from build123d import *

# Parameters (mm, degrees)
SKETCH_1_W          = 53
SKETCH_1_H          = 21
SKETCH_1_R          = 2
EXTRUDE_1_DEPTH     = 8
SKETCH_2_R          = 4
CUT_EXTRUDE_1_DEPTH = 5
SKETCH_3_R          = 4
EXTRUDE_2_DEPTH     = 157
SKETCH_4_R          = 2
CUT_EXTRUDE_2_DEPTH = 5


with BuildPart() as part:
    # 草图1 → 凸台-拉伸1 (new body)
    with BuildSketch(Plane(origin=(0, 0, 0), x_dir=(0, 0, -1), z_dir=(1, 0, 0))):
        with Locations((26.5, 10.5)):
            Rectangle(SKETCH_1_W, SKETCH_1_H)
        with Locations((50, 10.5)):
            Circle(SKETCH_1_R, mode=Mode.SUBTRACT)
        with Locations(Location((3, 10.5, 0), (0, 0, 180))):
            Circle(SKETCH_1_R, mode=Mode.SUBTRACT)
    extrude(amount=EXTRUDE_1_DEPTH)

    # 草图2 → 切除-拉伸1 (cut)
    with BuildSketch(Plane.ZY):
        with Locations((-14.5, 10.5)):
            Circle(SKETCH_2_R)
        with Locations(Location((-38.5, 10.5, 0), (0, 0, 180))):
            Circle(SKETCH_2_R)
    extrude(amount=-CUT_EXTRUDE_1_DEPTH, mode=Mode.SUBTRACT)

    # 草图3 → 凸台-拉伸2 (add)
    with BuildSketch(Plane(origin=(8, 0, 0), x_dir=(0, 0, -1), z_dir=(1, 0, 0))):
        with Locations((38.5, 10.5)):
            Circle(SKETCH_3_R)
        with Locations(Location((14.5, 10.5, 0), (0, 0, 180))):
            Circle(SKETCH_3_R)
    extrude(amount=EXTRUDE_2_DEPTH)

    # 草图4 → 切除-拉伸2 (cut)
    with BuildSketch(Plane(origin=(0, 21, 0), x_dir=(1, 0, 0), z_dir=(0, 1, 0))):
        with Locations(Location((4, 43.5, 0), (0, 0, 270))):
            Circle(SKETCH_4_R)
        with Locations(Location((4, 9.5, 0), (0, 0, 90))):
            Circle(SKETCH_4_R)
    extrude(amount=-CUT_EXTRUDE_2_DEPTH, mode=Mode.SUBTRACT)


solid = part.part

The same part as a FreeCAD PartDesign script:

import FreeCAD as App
import Part
import Sketcher
from FreeCAD import Vector
Q = App.Units.Quantity

doc = App.newDocument("Part")
body = doc.addObject("PartDesign::Body", "Body")

# Sketch on YZ plane
sketch1 = body.newObject("Sketcher::SketchObject", "Sketch")
sketch1.AttachmentSupport = (doc.getObject("YZ_Plane"), [""])
sketch1.MapMode = "FlatFace"
sketch1.addGeometry([
    Part.LineSegment(Vector(21, 0, 0), Vector(0, 0, 0)),  # 0
    Part.LineSegment(Vector(0, 0, 0), Vector(0, -53, 0)),  # 1
    Part.LineSegment(Vector(0, -53, 0), Vector(21, -53, 0)),  # 2
    Part.LineSegment(Vector(21, -53, 0), Vector(21, 0, 0)),  # 3
    Part.Circle(Vector(10.5, -3, 0), Vector(0, 0, 1), 2),  # 4
    Part.Circle(Vector(10.5, -50, 0), Vector(0, 0, 1), 2),  # 5
], False)
sketch1.addConstraint([
    Sketcher.Constraint("Coincident", 0, 2, 1, 1),
    Sketcher.Constraint("Coincident", 1, 2, 2, 1),
    Sketcher.Constraint("Coincident", 2, 2, 3, 1),
    Sketcher.Constraint("Coincident", 3, 2, 0, 1),
    Sketcher.Constraint("Horizontal", 0),
    Sketcher.Constraint("Vertical", 1),
    Sketcher.Constraint("Horizontal", 2),
    Sketcher.Constraint("Vertical", 3),
    Sketcher.Constraint("Coincident", 0, 2, -1, 1),
    Sketcher.Constraint("Equal", 4, 5),
    Sketcher.Constraint("Vertical", 4, 3, 5, 3),
    Sketcher.Constraint("Diameter", 4, Q("4 mm")),
    Sketcher.Constraint("DistanceX", 0, 2, 0, 1, Q("21 mm")),
    Sketcher.Constraint("DistanceY", 1, 2, 1, 1, Q("53 mm")),
    Sketcher.Constraint("DistanceY", 4, 3, -1, 1, Q("3 mm")),
    Sketcher.Constraint("DistanceY", 5, 3, -1, 1, Q("50 mm")),
    Sketcher.Constraint("DistanceX", -1, 1, 4, 3, Q("10.5 mm")),
])
pad1 = body.newObject("PartDesign::Pad", "Pad")
pad1.Profile = sketch1
pad1.Length = 8

# Sketch on YZ plane
sketch2 = body.newObject("Sketcher::SketchObject", "Sketch001")
sketch2.AttachmentSupport = (doc.getObject("YZ_Plane"), [""])
sketch2.MapMode = "FlatFace"
sketch2.addGeometry([
    Part.Circle(Vector(10.5, -14.5, 0), Vector(0, 0, 1), 4),
    Part.Circle(Vector(10.5, -38.5, 0), Vector(0, 0, 1), 4),
], False)
sketch2.addConstraint([
    Sketcher.Constraint("Equal", 0, 1),
    Sketcher.Constraint("Vertical", 0, 3, 1, 3),
    Sketcher.Constraint("Diameter", 0, Q("8 mm")),
    Sketcher.Constraint("DistanceY", 1, 3, 0, 3, Q("24 mm")),
    Sketcher.Constraint("DistanceX", -1, 1, 0, 3, Q("10.5 mm")),
    Sketcher.Constraint("DistanceY", 0, 3, -1, 1, Q("14.5 mm")),
])
pocket1 = body.newObject("PartDesign::Pocket", "Pocket")
pocket1.Profile = sketch2
pocket1.Length = 5
pocket1.Reversed = True

# Sketch on YZ plane
sketch3 = body.newObject("Sketcher::SketchObject", "Sketch002")
sketch3.AttachmentSupport = (doc.getObject("YZ_Plane"), [""])
sketch3.MapMode = "FlatFace"
sketch3.AttachmentOffset = App.Placement(Vector(0, 0, 8), App.Rotation())
sketch3.addGeometry([
    Part.Circle(Vector(10.5, -38.5, 0), Vector(0, 0, 1), 4),
    Part.Circle(Vector(10.5, -14.5, 0), Vector(0, 0, 1), 4),
], False)
sketch3.addConstraint([
    Sketcher.Constraint("Equal", 0, 1),
    Sketcher.Constraint("Vertical", 0, 3, 1, 3),
    Sketcher.Constraint("Diameter", 0, Q("8 mm")),
    Sketcher.Constraint("DistanceY", 0, 3, 1, 3, Q("24 mm")),
    Sketcher.Constraint("DistanceX", -1, 1, 0, 3, Q("10.5 mm")),
    Sketcher.Constraint("DistanceY", 0, 3, -1, 1, Q("38.5 mm")),
])
pad2 = body.newObject("PartDesign::Pad", "Pad001")
pad2.Profile = sketch3
pad2.Length = 157

# Sketch on XZ plane
sketch4 = body.newObject("Sketcher::SketchObject", "Sketch003")
sketch4.AttachmentSupport = (doc.getObject("XZ_Plane"), [""])
sketch4.MapMode = "FlatFace"
sketch4.AttachmentOffset = App.Placement(Vector(0, 0, -21), App.Rotation())
sketch4.addGeometry([
    Part.Circle(Vector(4, -43.5, 0), Vector(0, 0, 1), 2),
    Part.Circle(Vector(4, -9.5, 0), Vector(0, 0, 1), 2),
], False)
sketch4.addConstraint([
    Sketcher.Constraint("Equal", 0, 1),
    Sketcher.Constraint("Vertical", 0, 3, 1, 3),
    Sketcher.Constraint("Diameter", 0, Q("4 mm")),
    Sketcher.Constraint("DistanceX", -1, 1, 0, 3, Q("4 mm")),
    Sketcher.Constraint("DistanceY", 0, 3, 1, 3, Q("34 mm")),
    Sketcher.Constraint("DistanceY", 0, 3, -1, 1, Q("43.5 mm")),
])
pocket2 = body.newObject("PartDesign::Pocket", "Pocket001")
pocket2.Profile = sketch4
pocket2.Length = 5
pocket2.Reversed = True

doc.recompute()
